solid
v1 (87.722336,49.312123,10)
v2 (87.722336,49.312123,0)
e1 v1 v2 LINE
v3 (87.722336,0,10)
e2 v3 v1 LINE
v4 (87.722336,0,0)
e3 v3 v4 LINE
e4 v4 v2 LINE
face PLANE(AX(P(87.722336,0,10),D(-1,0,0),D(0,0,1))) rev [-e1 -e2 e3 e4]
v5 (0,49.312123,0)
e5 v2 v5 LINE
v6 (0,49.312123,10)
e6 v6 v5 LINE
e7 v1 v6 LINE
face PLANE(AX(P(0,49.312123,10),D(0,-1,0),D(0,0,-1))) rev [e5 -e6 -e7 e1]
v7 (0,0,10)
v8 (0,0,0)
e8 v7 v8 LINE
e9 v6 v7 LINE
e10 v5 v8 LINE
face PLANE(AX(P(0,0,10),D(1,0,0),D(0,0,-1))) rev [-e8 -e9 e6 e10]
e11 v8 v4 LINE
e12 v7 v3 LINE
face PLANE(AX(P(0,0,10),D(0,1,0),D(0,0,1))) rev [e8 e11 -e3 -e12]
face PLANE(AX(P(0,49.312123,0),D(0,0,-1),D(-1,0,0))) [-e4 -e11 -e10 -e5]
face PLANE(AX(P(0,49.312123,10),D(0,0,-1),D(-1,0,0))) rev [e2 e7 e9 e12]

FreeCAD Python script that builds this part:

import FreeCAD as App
import Part
import Sketcher
from FreeCAD import Vector


def add_polygon(sketch, points):
    """Adds a closed chain of lines whose ends are joined by coincident constraints."""
    first, n = sketch.GeometryCount, len(points)
    for a, b in zip(points, points[1:] + points[:1]):
        sketch.addGeometry(Part.LineSegment(App.Vector(*a, 0), App.Vector(*b, 0)), False)
    for i in range(n):
        sketch.addConstraint(Sketcher.Constraint("Coincident", first + i, 2, first + (i + 1) % n, 1))

doc = App.newDocument("Part")
body = doc.addObject("PartDesign::Body", "Body")

# Sketch on XY plane
sketch1 = body.newObject("Sketcher::SketchObject", "Sketch")
sketch1.AttachmentSupport = (doc.getObject("XY_Plane"), [""])
sketch1.MapMode = "FlatFace"
add_polygon(sketch1, [(0, 49.312123), (0, 0), (87.722336, 0), (87.722336, 49.312123)])  # lines 0-3
sketch1.addConstraint(Sketcher.Constraint("Vertical", 0))
sketch1.addConstraint(Sketcher.Constraint("Horizontal", 1))
sketch1.addConstraint(Sketcher.Constraint("Vertical", 2))
sketch1.addConstraint(Sketcher.Constraint("Horizontal", 3))
sketch1.addConstraint(Sketcher.Constraint("Coincident", 0, 2, -1, 1))
sketch1.addConstraint(Sketcher.Constraint("DistanceX", 1, 1, 1, 2, 87.722336))
sketch1.addConstraint(Sketcher.Constraint("DistanceY", 0, 2, 0, 1, 49.312123))
pad1 = body.newObject("PartDesign::Pad", "Pad")
pad1.Profile = sketch1
pad1.Length = 10

doc.recompute()
